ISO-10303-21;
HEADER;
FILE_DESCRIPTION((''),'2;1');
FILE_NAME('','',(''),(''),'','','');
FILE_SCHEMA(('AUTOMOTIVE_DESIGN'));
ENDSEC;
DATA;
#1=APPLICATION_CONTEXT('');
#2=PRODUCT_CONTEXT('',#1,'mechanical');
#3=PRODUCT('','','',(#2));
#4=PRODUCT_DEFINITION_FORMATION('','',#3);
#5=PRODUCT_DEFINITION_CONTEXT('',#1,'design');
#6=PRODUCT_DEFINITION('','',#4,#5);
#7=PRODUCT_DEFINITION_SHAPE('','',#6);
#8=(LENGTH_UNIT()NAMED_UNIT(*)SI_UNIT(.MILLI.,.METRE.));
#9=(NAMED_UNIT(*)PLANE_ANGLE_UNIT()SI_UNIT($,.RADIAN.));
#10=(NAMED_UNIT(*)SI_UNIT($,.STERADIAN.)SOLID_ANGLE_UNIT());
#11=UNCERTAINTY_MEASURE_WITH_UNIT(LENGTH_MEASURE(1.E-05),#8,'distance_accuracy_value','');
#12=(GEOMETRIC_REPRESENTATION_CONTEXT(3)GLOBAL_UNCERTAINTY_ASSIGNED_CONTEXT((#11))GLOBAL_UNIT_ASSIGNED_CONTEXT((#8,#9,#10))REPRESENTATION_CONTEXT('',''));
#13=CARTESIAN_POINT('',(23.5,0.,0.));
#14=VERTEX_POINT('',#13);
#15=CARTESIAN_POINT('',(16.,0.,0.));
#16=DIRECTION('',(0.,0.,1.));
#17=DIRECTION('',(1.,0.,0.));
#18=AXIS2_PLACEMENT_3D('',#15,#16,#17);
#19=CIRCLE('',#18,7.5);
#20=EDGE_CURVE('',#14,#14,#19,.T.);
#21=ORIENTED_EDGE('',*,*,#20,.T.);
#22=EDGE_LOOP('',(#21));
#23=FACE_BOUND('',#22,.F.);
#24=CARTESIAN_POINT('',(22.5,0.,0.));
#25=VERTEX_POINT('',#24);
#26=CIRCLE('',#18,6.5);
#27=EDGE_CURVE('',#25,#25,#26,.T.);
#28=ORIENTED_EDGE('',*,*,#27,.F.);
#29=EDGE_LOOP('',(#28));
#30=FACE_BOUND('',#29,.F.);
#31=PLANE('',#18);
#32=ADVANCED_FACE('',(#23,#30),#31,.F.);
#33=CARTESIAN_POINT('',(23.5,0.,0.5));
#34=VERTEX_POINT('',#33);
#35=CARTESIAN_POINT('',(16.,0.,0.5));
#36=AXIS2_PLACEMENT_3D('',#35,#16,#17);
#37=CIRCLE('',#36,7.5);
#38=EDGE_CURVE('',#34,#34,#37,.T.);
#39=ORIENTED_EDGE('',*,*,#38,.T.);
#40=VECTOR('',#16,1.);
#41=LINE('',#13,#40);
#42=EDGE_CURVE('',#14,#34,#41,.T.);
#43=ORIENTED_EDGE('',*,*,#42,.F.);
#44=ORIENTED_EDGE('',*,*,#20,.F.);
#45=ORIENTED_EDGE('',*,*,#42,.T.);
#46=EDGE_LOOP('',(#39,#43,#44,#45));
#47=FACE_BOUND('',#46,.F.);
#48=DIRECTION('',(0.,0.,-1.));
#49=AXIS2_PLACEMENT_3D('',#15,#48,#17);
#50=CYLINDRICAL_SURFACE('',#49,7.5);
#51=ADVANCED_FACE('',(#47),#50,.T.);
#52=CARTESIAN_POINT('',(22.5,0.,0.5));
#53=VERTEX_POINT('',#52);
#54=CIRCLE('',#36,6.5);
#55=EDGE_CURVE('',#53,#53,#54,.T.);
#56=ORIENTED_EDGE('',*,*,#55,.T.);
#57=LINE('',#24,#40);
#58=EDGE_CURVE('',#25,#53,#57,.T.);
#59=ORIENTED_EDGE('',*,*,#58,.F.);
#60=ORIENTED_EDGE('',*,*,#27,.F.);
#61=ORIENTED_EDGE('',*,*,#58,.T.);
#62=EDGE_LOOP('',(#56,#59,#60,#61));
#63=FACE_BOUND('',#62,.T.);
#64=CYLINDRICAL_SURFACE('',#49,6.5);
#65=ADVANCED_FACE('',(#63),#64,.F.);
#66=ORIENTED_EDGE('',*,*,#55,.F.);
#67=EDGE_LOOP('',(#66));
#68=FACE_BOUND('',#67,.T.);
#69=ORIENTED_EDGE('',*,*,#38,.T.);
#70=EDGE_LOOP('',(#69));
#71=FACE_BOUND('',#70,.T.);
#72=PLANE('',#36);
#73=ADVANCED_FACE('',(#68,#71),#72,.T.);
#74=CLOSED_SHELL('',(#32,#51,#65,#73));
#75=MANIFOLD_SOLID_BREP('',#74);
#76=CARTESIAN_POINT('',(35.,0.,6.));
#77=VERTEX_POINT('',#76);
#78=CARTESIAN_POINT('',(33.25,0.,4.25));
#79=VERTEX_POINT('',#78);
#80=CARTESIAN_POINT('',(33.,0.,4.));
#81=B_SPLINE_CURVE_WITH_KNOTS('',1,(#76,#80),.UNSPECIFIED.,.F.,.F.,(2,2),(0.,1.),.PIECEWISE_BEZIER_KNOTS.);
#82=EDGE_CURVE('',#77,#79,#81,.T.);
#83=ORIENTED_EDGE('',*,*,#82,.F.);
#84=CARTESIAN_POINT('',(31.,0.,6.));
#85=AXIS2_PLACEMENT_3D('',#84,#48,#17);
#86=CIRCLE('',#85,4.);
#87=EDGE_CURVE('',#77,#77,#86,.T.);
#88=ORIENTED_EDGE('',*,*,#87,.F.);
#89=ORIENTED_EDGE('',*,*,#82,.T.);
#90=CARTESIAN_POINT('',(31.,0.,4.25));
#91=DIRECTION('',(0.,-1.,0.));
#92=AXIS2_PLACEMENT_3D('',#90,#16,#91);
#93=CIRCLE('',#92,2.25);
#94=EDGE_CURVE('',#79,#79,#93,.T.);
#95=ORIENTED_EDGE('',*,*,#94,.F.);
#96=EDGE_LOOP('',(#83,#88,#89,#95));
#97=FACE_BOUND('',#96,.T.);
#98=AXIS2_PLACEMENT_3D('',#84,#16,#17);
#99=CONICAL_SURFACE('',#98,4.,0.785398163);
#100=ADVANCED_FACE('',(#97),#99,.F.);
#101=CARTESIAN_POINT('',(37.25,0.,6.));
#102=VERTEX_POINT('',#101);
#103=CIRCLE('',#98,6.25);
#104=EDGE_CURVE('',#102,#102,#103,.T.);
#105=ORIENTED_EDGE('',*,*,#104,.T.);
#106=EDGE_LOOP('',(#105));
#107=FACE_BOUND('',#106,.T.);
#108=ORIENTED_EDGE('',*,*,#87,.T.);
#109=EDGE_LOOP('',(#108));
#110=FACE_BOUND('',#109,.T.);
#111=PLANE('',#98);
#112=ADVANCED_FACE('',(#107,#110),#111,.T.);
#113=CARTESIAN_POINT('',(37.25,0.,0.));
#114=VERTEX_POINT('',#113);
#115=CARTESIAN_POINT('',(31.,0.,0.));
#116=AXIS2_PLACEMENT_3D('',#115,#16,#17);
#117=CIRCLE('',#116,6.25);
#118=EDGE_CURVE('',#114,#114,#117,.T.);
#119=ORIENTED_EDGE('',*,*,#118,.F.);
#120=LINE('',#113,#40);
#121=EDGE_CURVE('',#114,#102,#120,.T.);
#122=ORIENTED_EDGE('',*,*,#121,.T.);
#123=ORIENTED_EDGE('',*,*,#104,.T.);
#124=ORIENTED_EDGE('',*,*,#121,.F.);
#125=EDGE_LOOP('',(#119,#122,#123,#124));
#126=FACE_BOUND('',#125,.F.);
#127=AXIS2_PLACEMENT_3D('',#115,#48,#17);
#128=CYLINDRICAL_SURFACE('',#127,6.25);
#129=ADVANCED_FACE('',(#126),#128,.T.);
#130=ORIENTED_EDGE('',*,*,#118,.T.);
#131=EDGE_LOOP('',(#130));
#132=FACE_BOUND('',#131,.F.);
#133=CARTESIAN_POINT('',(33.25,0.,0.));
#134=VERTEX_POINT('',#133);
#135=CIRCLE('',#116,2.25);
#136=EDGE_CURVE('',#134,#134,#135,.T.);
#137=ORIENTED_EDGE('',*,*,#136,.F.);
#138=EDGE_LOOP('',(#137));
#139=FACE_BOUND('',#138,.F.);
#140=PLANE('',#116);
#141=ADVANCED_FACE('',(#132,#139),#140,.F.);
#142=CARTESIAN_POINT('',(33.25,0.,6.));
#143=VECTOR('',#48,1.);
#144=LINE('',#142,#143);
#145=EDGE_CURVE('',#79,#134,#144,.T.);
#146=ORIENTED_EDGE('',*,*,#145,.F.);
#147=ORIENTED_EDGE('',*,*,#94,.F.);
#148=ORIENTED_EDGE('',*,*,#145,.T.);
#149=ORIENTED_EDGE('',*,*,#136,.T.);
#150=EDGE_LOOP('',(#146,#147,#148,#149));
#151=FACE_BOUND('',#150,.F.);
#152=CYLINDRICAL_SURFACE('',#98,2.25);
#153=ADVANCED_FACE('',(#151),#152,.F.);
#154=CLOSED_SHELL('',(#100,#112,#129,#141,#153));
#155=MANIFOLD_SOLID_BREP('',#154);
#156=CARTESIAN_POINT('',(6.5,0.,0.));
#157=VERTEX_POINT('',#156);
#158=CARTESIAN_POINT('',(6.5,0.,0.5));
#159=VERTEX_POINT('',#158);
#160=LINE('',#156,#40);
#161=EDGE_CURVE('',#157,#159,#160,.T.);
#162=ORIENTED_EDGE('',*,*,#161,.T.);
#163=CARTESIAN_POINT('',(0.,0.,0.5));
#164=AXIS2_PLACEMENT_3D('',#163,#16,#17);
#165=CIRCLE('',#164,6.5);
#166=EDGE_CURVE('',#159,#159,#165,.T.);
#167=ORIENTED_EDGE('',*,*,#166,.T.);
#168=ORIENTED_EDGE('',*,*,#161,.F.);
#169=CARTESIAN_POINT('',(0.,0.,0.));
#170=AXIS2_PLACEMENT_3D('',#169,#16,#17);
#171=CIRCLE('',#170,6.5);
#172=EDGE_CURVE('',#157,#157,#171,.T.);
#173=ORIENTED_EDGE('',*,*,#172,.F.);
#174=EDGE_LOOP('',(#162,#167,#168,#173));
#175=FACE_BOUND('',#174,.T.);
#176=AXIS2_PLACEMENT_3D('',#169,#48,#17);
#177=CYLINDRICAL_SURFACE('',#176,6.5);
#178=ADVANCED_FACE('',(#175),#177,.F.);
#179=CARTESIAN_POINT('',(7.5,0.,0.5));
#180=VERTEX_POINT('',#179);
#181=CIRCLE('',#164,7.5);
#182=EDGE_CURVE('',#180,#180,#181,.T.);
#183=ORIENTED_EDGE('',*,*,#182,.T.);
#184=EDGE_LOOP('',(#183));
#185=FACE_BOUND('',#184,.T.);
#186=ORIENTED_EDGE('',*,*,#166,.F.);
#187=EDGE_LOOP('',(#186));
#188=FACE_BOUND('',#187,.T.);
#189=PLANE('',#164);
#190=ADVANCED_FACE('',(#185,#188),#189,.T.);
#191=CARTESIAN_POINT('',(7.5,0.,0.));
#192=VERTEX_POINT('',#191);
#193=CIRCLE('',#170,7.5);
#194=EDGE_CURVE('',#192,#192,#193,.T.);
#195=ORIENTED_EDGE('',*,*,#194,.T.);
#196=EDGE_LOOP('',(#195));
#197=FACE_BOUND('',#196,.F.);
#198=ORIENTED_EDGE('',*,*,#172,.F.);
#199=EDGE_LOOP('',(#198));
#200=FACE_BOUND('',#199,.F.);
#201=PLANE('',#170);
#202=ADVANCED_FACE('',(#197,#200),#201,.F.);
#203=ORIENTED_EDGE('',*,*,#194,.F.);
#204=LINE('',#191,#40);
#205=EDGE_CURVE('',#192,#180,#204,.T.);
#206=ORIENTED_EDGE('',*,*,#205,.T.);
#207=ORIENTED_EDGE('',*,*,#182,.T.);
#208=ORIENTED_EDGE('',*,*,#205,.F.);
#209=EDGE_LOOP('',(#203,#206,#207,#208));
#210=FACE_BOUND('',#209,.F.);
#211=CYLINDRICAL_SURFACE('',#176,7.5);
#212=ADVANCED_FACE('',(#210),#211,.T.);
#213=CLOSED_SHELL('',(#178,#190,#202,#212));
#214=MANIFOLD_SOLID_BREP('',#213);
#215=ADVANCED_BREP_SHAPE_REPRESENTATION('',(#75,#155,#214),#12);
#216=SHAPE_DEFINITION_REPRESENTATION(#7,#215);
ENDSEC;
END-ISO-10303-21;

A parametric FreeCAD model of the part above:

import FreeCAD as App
import Part
import Sketcher

V = App.Vector

doc = App.newDocument("Part")
body = doc.addObject("PartDesign::Body", "Body")

sketch1 = body.newObject("Sketcher::SketchObject", "Sketch")
sketch1.AttachmentSupport = (doc.getObject("XY_Plane"), [""])
sketch1.MapMode = "FlatFace"
sketch1.addGeometry(Part.Circle(V(0, 0, 0), V(0, 0, 1), 8), False)
sketch1.addGeometry(Part.Circle(V(0, 0, 0), V(0, 0, 1), 6), False)
sketch1.addConstraint(Sketcher.Constraint("Coincident", 0, 3, -1, 1))
sketch1.addConstraint(Sketcher.Constraint("Coincident", 1, 3, -1, 1))
sketch1.addConstraint(Sketcher.Constraint("Diameter", 0, 15.0))
sketch1.addConstraint(Sketcher.Constraint("Diameter", 1, 13.0))
pad1 = body.newObject("PartDesign::Pad", "Pad")
pad1.Profile = sketch1
pad1.Length = 0.5
body2 = doc.addObject("PartDesign::Body", "Body001")

sketch2 = body2.newObject("Sketcher::SketchObject", "Sketch001")
sketch2.AttachmentSupport = (doc.getObject("XY_Plane001"), [""])
sketch2.MapMode = "FlatFace"
sketch2.addGeometry(Part.Circle(V(16, 0, 0), V(0, 0, 1), 8), False)
sketch2.addGeometry(Part.Circle(V(16, 0, 0), V(0, 0, 1), 6), False)
sketch2.addConstraint(Sketcher.Constraint("Coincident", 1, 3, 0, 3))
sketch2.addConstraint(Sketcher.Constraint("PointOnObject", 0, 3, -1))
sketch2.addConstraint(Sketcher.Constraint("Diameter", 0, 15.0))
sketch2.addConstraint(Sketcher.Constraint("Diameter", 1, 13.0))
sketch2.addConstraint(Sketcher.Constraint("DistanceX", -1, 1, 0, 3, 16.0))
pad2 = body2.newObject("PartDesign::Pad", "Pad001")
pad2.Profile = sketch2
pad2.Length = 0.5
body3 = doc.addObject("PartDesign::Body", "Body002")

sketch3 = body3.newObject("Sketcher::SketchObject", "Sketch002")
sketch3.AttachmentSupport = (doc.getObject("XY_Plane002"), [""])
sketch3.MapMode = "FlatFace"
sketch3.addGeometry(Part.Circle(V(31, 0, 0), V(0, 0, 1), 6), False)
sketch3.addConstraint(Sketcher.Constraint("PointOnObject", 0, 3, -1))
sketch3.addConstraint(Sketcher.Constraint("Diameter", 0, 12.5))
sketch3.addConstraint(Sketcher.Constraint("DistanceX", -1, 1, 0, 3, 31.0))
pad3 = body3.newObject("PartDesign::Pad", "Pad002")
pad3.Profile = sketch3
pad3.Length = 6

sketch4 = body3.newObject("Sketcher::SketchObject", "Sketch003")
sketch4.AttachmentSupport = (doc.getObject("XY_Plane002"), [""])
sketch4.MapMode = "FlatFace"
sketch4.AttachmentOffset = App.Placement(V(0, 0, 6), App.Rotation())
sketch4.addGeometry(Part.Circle(V(31, 0, 0), V(0, 0, 1), 4), False)
sketch4.addConstraint(Sketcher.Constraint("PointOnObject", 0, 3, -1))
sketch4.addConstraint(Sketcher.Constraint("Diameter", 0, 8.0))
sketch4.addConstraint(Sketcher.Constraint("DistanceX", -1, 1, 0, 3, 31.0))
pocket1 = body3.newObject("PartDesign::Pocket", "Pocket")
pocket1.Profile = sketch4
pocket1.Length = 2
pocket1.TaperAngle = -45

sketch5 = body3.newObject("Sketcher::SketchObject", "Sketch004")
sketch5.AttachmentSupport = (doc.getObject("XY_Plane002"), [""])
sketch5.MapMode = "FlatFace"
sketch5.AttachmentOffset = App.Placement(V(0, 0, 6), App.Rotation())
sketch5.addGeometry(Part.Circle(V(31, 0, 0), V(0, 0, 1), 2.2), False)
sketch5.addConstraint(Sketcher.Constraint("PointOnObject", 0, 3, -1))
sketch5.addConstraint(Sketcher.Constraint("Diameter", 0, 4.5))
sketch5.addConstraint(Sketcher.Constraint("DistanceX", -1, 1, 0, 3, 31.0))
pocket2 = body3.newObject("PartDesign::Pocket", "Pocket001")
pocket2.Profile = sketch5
pocket2.Type = "ThroughAll"

doc.recompute()
